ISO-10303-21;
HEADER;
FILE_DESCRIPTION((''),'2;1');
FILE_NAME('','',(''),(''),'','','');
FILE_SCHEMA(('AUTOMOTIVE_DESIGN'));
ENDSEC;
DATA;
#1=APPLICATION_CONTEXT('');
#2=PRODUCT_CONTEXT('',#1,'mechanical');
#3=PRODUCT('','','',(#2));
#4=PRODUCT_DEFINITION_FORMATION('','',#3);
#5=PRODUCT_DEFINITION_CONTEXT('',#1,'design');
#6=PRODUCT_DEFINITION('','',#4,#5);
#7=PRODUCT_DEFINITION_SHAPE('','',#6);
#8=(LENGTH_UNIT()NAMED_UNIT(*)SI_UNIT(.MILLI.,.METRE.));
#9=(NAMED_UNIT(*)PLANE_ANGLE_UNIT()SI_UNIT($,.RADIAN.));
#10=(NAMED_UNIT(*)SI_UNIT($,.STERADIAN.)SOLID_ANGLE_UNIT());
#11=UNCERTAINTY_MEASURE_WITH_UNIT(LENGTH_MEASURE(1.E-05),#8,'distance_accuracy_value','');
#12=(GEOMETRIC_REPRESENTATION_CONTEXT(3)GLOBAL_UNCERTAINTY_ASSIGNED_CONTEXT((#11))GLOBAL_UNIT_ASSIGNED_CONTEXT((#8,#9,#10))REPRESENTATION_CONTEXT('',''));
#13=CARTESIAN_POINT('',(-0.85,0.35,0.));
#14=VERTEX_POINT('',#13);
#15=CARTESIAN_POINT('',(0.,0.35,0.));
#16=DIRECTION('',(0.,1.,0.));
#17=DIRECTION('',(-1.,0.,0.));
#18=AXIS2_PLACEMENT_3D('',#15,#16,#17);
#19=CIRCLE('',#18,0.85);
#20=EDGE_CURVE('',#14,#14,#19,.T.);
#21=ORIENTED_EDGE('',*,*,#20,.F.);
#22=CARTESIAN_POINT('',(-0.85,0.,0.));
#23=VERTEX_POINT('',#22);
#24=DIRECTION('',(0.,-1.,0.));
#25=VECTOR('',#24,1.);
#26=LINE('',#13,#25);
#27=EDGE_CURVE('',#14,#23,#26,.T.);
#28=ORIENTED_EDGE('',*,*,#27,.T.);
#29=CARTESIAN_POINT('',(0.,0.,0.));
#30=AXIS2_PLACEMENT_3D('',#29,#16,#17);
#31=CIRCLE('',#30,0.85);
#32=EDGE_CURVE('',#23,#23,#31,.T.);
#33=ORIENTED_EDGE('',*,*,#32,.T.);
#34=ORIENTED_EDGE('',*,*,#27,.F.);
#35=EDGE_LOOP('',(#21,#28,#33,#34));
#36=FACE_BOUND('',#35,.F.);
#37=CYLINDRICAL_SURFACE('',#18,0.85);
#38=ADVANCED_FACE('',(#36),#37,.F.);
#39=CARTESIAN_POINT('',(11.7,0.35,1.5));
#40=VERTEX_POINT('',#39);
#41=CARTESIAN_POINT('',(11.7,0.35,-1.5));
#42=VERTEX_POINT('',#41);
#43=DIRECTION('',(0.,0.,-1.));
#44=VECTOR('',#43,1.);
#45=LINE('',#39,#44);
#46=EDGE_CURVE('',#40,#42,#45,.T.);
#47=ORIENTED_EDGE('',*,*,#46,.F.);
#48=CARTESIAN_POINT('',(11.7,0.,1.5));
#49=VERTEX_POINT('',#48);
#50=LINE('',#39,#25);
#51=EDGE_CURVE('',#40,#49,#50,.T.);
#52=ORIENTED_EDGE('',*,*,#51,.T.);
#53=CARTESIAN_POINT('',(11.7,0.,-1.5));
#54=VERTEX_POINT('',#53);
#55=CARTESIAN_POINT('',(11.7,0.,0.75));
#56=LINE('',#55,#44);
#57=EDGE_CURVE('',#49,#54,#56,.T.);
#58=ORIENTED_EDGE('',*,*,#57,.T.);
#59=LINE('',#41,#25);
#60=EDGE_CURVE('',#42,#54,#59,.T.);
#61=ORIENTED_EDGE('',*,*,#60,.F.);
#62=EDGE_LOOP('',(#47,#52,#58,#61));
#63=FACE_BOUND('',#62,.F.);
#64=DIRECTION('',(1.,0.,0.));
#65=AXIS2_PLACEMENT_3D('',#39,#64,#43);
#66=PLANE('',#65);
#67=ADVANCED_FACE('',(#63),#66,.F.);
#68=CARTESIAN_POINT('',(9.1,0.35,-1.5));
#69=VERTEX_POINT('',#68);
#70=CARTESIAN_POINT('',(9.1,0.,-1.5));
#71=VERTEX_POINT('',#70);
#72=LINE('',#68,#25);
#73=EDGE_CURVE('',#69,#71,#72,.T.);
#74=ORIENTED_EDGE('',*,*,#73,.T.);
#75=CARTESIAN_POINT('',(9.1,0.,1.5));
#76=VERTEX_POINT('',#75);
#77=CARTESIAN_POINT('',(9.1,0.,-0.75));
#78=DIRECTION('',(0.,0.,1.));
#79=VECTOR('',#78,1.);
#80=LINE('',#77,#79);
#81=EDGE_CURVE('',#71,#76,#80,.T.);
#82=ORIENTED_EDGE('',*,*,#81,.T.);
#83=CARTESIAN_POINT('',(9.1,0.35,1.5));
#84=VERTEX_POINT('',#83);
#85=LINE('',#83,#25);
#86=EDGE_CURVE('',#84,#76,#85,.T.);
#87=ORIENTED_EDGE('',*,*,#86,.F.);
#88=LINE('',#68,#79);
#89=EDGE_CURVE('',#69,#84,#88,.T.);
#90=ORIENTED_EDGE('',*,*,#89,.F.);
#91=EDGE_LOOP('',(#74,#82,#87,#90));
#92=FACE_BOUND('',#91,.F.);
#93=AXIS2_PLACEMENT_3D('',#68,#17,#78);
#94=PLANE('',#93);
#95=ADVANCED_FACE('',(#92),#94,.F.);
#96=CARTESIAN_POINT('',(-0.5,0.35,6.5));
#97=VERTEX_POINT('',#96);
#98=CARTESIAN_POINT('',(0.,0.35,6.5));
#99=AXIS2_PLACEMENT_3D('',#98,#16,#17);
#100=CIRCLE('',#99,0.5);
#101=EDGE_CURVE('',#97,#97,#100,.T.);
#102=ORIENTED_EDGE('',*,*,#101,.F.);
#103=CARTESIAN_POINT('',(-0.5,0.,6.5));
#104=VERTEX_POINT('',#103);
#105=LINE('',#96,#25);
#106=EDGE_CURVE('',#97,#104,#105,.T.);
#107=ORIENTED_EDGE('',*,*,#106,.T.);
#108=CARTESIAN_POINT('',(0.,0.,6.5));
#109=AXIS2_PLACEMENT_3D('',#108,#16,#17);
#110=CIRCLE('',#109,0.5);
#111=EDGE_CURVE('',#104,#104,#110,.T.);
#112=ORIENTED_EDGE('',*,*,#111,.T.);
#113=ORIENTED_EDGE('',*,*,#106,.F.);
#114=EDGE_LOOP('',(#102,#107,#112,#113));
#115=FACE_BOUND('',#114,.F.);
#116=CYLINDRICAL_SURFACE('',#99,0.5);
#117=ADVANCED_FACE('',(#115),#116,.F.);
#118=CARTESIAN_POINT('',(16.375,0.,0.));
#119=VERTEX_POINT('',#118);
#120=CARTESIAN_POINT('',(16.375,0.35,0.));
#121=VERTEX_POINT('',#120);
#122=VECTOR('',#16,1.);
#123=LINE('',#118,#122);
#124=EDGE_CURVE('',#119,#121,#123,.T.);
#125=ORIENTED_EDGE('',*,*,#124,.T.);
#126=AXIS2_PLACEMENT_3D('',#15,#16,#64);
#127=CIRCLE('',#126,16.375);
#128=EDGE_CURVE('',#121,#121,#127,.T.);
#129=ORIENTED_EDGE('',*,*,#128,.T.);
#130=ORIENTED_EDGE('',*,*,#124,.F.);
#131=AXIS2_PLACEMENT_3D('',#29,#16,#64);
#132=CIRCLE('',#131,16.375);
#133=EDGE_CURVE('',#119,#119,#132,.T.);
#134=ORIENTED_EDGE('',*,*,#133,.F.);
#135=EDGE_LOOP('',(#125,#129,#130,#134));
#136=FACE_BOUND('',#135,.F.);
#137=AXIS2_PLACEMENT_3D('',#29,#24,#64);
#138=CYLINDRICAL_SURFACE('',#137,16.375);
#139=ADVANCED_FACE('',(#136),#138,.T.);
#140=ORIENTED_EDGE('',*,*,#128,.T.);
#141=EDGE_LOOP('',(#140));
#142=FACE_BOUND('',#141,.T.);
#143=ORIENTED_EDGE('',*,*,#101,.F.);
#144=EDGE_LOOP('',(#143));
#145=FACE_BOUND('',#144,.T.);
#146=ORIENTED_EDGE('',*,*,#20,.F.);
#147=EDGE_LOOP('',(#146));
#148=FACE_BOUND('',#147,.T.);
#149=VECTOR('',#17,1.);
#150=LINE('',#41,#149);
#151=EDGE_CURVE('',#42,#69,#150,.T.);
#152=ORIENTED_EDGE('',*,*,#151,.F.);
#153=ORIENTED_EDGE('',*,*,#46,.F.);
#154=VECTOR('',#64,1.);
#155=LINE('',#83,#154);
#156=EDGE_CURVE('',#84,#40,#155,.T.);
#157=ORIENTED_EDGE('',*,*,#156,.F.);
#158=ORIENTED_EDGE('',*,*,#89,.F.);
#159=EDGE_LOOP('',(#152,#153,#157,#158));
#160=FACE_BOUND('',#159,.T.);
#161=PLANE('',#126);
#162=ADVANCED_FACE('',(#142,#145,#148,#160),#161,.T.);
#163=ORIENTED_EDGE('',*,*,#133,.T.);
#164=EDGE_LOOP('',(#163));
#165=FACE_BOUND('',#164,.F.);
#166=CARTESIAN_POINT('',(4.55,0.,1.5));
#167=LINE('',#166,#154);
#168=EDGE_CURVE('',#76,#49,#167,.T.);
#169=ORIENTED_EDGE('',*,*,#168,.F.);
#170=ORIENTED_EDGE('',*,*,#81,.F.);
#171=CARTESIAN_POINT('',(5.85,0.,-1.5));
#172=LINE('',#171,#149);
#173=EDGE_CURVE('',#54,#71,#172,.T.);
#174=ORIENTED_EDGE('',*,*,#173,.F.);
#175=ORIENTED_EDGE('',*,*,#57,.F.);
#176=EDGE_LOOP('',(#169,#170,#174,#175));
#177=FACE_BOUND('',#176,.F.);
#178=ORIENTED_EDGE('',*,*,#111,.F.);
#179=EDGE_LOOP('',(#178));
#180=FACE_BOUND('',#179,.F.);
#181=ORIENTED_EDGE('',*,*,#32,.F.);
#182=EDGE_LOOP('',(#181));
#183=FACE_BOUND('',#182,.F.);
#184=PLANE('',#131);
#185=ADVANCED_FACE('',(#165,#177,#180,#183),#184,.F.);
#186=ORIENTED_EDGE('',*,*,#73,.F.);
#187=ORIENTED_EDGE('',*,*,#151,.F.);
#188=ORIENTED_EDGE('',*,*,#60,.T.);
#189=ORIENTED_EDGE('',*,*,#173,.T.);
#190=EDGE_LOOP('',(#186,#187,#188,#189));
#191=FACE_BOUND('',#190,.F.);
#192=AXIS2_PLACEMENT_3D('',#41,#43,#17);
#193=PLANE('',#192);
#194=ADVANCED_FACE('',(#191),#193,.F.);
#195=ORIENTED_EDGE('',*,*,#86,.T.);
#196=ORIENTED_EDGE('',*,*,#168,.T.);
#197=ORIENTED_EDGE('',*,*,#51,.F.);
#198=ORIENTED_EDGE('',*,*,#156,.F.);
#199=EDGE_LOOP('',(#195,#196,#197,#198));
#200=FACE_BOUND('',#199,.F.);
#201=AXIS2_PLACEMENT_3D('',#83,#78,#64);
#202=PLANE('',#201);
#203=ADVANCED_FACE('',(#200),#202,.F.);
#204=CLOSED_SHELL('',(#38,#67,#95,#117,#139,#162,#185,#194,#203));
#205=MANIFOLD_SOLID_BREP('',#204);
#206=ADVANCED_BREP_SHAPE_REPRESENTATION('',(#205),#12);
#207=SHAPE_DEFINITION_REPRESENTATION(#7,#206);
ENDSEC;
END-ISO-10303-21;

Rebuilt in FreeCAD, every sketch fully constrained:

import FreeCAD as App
import Part
import Sketcher

V = App.Vector
Q = App.Units.Quantity


def add_polygon(sketch, points):
    """Adds a closed chain of lines whose ends are joined by coincident constraints."""
    first, n = sketch.GeometryCount, len(points)
    for a, b in zip(points, points[1:] + points[:1]):
        sketch.addGeometry(Part.LineSegment(App.Vector(*a, 0), App.Vector(*b, 0)), False)
    for i in range(n):
        sketch.addConstraint(Sketcher.Constraint("Coincident", first + i, 2, first + (i + 1) % n, 1))

doc = App.newDocument("Part")
body = doc.addObject("PartDesign::Body", "Body")

# Sketch on XZ plane
sketch1 = body.newObject("Sketcher::SketchObject", "Sketch")
sketch1.AttachmentSupport = (doc.getObject("XZ_Plane"), [""])
sketch1.MapMode = "FlatFace"
sketch1.addGeometry(Part.Circle(V(0, 0, 0), V(0, 0, 1), 16.375), False)
sketch1.addConstraint([
    Sketcher.Constraint("Coincident", 0, 3, -1, 1),
    Sketcher.Constraint("Diameter", 0, Q("32.75 mm")),
])
pad1 = body.newObject("PartDesign::Pad", "Pad")
pad1.Profile = sketch1
pad1.Length = 0.35
pad1.Reversed = True

# Sketch on XZ plane
sketch2 = body.newObject("Sketcher::SketchObject", "Sketch001")
sketch2.AttachmentSupport = (doc.getObject("XZ_Plane"), [""])
sketch2.MapMode = "FlatFace"
sketch2.AttachmentOffset = App.Placement(V(0, 0, -0.35), App.Rotation())
sketch2.addGeometry(Part.Circle(V(0, 0, 0), V(0, 0, 1), 0.85), False)  # 0
add_polygon(sketch2, [(9.1, -1.5), (9.1, 1.5), (11.7, 1.5), (11.7, -1.5)])  # lines 1-4
sketch2.addGeometry(Part.Circle(V(0, 6.5, 0), V(0, 0, 1), 0.5), False)  # 5
sketch2.addConstraint([
    Sketcher.Constraint("Vertical", 1),
    Sketcher.Constraint("Horizontal", 2),
    Sketcher.Constraint("Vertical", 3),
    Sketcher.Constraint("Horizontal", 4),
    Sketcher.Constraint("Coincident", 0, 3, -1, 1),
    Sketcher.Constraint("PointOnObject", 5, 3, -2),
    Sketcher.Constraint("Diameter", 5, Q("1 mm")),
    Sketcher.Constraint("Diameter", 0, Q("1.7 mm")),
    Sketcher.Constraint("DistanceY", 1, 1, 1, 2, Q("3 mm")),
    Sketcher.Constraint("DistanceX", 2, 1, 2, 2, Q("2.6 mm")),
    Sketcher.Constraint("DistanceY", -1, 1, 5, 3, Q("6.5 mm")),
    Sketcher.Constraint("DistanceX", -1, 1, 1, 2, Q("9.1 mm")),
    Sketcher.Constraint("DistanceY", -1, 1, 1, 2, Q("1.5 mm")),
])
pocket1 = body.newObject("PartDesign::Pocket", "Pocket")
pocket1.Profile = sketch2
pocket1.Type = "ThroughAll"
pocket1.Reversed = True

doc.recompute()
